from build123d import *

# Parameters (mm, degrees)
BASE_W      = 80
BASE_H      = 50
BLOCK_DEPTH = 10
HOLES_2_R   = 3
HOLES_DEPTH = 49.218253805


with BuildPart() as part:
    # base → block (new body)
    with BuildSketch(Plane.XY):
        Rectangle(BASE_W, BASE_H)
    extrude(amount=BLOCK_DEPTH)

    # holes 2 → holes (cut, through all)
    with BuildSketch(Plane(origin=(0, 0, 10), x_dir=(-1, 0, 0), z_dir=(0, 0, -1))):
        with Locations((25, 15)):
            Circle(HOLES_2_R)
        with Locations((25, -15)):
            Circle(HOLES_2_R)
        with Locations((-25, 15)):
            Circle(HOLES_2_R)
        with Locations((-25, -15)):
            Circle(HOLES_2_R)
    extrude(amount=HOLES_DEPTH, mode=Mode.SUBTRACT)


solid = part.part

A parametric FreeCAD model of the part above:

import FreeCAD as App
import Part
import Sketcher


def add_polygon(sketch, points):
    """Adds a closed chain of lines whose ends are joined by coincident constraints."""
    first, n = sketch.GeometryCount, len(points)
    for a, b in zip(points, points[1:] + points[:1]):
        sketch.addGeometry(Part.LineSegment(App.Vector(*a, 0), App.Vector(*b, 0)), False)
    for i in range(n):
        sketch.addConstraint(Sketcher.Constraint("Coincident", first + i, 2, first + (i + 1) % n, 1))

doc = App.newDocument("Part")
body = doc.addObject("PartDesign::Body", "Body")

# Sketch on XY plane
sketch1 = doc.addObject("Sketcher::SketchObject", "Sketch")
body.addObject(sketch1)
sketch1.AttachmentSupport = (doc.XY_Plane, [""])
sketch1.MapMode = "FlatFace"
add_polygon(sketch1, [(-40, 25), (-40, -25), (40, -25), (40, 25)])  # lines 0-3
sketch1.addConstraint([
    Sketcher.Constraint("Vertical", 0),
    Sketcher.Constraint("Horizontal", 1),
    Sketcher.Constraint("Vertical", 2),
    Sketcher.Constraint("Horizontal", 3),
    Sketcher.Constraint("Symmetric", 0, 2, 2, 2, -1, 1),
    Sketcher.Constraint("DistanceX", 1, 1, 1, 2, 80.0),
    Sketcher.Constraint("DistanceY", 0, 2, 0, 1, 50.0),
])
pad1 = doc.addObject("PartDesign::Pad", "Pad")
body.addObject(pad1)
pad1.Profile = sketch1
pad1.Length = 10

# Sketch on XY plane
sketch2 = doc.addObject("Sketcher::SketchObject", "Sketch001")
body.addObject(sketch2)
sketch2.AttachmentSupport = (doc.XY_Plane, [""])
sketch2.MapMode = "FlatFace"
sketch2.AttachmentOffset = App.Placement(App.Vector(0, 0, 10), App.Rotation())
sketch2.addGeometry([
    Part.Circle(App.Vector(-25, 15, 0), App.Vector(0, 0, 1), 3),
    Part.Circle(App.Vector(-25, -15, 0), App.Vector(0, 0, 1), 3),
    Part.Circle(App.Vector(25, 15, 0), App.Vector(0, 0, 1), 3),
    Part.Circle(App.Vector(25, -15, 0), App.Vector(0, 0, 1), 3),
], False)
sketch2.addConstraint([
    Sketcher.Constraint("Equal", 0, 1),
    Sketcher.Constraint("Equal", 1, 2),
    Sketcher.Constraint("Equal", 2, 3),
    Sketcher.Constraint("Symmetric", 1, 3, 2, 3, -1, 1),
    Sketcher.Constraint("Symmetric", 0, 3, 3, 3, -1, 1),
    Sketcher.Constraint("Symmetric", 0, 3, 2, 3, -2),
    Sketcher.Constraint("Diameter", 0, 6.0),
    Sketcher.Constraint("DistanceX", 0, 3, -1, 1, 25.0),
    Sketcher.Constraint("DistanceY", -1, 1, 0, 3, 15.0),
])
pocket1 = doc.addObject("PartDesign::Pocket", "Pocket")
body.addObject(pocket1)
pocket1.Profile = sketch2
pocket1.Type = "ThroughAll"

doc.recompute()
